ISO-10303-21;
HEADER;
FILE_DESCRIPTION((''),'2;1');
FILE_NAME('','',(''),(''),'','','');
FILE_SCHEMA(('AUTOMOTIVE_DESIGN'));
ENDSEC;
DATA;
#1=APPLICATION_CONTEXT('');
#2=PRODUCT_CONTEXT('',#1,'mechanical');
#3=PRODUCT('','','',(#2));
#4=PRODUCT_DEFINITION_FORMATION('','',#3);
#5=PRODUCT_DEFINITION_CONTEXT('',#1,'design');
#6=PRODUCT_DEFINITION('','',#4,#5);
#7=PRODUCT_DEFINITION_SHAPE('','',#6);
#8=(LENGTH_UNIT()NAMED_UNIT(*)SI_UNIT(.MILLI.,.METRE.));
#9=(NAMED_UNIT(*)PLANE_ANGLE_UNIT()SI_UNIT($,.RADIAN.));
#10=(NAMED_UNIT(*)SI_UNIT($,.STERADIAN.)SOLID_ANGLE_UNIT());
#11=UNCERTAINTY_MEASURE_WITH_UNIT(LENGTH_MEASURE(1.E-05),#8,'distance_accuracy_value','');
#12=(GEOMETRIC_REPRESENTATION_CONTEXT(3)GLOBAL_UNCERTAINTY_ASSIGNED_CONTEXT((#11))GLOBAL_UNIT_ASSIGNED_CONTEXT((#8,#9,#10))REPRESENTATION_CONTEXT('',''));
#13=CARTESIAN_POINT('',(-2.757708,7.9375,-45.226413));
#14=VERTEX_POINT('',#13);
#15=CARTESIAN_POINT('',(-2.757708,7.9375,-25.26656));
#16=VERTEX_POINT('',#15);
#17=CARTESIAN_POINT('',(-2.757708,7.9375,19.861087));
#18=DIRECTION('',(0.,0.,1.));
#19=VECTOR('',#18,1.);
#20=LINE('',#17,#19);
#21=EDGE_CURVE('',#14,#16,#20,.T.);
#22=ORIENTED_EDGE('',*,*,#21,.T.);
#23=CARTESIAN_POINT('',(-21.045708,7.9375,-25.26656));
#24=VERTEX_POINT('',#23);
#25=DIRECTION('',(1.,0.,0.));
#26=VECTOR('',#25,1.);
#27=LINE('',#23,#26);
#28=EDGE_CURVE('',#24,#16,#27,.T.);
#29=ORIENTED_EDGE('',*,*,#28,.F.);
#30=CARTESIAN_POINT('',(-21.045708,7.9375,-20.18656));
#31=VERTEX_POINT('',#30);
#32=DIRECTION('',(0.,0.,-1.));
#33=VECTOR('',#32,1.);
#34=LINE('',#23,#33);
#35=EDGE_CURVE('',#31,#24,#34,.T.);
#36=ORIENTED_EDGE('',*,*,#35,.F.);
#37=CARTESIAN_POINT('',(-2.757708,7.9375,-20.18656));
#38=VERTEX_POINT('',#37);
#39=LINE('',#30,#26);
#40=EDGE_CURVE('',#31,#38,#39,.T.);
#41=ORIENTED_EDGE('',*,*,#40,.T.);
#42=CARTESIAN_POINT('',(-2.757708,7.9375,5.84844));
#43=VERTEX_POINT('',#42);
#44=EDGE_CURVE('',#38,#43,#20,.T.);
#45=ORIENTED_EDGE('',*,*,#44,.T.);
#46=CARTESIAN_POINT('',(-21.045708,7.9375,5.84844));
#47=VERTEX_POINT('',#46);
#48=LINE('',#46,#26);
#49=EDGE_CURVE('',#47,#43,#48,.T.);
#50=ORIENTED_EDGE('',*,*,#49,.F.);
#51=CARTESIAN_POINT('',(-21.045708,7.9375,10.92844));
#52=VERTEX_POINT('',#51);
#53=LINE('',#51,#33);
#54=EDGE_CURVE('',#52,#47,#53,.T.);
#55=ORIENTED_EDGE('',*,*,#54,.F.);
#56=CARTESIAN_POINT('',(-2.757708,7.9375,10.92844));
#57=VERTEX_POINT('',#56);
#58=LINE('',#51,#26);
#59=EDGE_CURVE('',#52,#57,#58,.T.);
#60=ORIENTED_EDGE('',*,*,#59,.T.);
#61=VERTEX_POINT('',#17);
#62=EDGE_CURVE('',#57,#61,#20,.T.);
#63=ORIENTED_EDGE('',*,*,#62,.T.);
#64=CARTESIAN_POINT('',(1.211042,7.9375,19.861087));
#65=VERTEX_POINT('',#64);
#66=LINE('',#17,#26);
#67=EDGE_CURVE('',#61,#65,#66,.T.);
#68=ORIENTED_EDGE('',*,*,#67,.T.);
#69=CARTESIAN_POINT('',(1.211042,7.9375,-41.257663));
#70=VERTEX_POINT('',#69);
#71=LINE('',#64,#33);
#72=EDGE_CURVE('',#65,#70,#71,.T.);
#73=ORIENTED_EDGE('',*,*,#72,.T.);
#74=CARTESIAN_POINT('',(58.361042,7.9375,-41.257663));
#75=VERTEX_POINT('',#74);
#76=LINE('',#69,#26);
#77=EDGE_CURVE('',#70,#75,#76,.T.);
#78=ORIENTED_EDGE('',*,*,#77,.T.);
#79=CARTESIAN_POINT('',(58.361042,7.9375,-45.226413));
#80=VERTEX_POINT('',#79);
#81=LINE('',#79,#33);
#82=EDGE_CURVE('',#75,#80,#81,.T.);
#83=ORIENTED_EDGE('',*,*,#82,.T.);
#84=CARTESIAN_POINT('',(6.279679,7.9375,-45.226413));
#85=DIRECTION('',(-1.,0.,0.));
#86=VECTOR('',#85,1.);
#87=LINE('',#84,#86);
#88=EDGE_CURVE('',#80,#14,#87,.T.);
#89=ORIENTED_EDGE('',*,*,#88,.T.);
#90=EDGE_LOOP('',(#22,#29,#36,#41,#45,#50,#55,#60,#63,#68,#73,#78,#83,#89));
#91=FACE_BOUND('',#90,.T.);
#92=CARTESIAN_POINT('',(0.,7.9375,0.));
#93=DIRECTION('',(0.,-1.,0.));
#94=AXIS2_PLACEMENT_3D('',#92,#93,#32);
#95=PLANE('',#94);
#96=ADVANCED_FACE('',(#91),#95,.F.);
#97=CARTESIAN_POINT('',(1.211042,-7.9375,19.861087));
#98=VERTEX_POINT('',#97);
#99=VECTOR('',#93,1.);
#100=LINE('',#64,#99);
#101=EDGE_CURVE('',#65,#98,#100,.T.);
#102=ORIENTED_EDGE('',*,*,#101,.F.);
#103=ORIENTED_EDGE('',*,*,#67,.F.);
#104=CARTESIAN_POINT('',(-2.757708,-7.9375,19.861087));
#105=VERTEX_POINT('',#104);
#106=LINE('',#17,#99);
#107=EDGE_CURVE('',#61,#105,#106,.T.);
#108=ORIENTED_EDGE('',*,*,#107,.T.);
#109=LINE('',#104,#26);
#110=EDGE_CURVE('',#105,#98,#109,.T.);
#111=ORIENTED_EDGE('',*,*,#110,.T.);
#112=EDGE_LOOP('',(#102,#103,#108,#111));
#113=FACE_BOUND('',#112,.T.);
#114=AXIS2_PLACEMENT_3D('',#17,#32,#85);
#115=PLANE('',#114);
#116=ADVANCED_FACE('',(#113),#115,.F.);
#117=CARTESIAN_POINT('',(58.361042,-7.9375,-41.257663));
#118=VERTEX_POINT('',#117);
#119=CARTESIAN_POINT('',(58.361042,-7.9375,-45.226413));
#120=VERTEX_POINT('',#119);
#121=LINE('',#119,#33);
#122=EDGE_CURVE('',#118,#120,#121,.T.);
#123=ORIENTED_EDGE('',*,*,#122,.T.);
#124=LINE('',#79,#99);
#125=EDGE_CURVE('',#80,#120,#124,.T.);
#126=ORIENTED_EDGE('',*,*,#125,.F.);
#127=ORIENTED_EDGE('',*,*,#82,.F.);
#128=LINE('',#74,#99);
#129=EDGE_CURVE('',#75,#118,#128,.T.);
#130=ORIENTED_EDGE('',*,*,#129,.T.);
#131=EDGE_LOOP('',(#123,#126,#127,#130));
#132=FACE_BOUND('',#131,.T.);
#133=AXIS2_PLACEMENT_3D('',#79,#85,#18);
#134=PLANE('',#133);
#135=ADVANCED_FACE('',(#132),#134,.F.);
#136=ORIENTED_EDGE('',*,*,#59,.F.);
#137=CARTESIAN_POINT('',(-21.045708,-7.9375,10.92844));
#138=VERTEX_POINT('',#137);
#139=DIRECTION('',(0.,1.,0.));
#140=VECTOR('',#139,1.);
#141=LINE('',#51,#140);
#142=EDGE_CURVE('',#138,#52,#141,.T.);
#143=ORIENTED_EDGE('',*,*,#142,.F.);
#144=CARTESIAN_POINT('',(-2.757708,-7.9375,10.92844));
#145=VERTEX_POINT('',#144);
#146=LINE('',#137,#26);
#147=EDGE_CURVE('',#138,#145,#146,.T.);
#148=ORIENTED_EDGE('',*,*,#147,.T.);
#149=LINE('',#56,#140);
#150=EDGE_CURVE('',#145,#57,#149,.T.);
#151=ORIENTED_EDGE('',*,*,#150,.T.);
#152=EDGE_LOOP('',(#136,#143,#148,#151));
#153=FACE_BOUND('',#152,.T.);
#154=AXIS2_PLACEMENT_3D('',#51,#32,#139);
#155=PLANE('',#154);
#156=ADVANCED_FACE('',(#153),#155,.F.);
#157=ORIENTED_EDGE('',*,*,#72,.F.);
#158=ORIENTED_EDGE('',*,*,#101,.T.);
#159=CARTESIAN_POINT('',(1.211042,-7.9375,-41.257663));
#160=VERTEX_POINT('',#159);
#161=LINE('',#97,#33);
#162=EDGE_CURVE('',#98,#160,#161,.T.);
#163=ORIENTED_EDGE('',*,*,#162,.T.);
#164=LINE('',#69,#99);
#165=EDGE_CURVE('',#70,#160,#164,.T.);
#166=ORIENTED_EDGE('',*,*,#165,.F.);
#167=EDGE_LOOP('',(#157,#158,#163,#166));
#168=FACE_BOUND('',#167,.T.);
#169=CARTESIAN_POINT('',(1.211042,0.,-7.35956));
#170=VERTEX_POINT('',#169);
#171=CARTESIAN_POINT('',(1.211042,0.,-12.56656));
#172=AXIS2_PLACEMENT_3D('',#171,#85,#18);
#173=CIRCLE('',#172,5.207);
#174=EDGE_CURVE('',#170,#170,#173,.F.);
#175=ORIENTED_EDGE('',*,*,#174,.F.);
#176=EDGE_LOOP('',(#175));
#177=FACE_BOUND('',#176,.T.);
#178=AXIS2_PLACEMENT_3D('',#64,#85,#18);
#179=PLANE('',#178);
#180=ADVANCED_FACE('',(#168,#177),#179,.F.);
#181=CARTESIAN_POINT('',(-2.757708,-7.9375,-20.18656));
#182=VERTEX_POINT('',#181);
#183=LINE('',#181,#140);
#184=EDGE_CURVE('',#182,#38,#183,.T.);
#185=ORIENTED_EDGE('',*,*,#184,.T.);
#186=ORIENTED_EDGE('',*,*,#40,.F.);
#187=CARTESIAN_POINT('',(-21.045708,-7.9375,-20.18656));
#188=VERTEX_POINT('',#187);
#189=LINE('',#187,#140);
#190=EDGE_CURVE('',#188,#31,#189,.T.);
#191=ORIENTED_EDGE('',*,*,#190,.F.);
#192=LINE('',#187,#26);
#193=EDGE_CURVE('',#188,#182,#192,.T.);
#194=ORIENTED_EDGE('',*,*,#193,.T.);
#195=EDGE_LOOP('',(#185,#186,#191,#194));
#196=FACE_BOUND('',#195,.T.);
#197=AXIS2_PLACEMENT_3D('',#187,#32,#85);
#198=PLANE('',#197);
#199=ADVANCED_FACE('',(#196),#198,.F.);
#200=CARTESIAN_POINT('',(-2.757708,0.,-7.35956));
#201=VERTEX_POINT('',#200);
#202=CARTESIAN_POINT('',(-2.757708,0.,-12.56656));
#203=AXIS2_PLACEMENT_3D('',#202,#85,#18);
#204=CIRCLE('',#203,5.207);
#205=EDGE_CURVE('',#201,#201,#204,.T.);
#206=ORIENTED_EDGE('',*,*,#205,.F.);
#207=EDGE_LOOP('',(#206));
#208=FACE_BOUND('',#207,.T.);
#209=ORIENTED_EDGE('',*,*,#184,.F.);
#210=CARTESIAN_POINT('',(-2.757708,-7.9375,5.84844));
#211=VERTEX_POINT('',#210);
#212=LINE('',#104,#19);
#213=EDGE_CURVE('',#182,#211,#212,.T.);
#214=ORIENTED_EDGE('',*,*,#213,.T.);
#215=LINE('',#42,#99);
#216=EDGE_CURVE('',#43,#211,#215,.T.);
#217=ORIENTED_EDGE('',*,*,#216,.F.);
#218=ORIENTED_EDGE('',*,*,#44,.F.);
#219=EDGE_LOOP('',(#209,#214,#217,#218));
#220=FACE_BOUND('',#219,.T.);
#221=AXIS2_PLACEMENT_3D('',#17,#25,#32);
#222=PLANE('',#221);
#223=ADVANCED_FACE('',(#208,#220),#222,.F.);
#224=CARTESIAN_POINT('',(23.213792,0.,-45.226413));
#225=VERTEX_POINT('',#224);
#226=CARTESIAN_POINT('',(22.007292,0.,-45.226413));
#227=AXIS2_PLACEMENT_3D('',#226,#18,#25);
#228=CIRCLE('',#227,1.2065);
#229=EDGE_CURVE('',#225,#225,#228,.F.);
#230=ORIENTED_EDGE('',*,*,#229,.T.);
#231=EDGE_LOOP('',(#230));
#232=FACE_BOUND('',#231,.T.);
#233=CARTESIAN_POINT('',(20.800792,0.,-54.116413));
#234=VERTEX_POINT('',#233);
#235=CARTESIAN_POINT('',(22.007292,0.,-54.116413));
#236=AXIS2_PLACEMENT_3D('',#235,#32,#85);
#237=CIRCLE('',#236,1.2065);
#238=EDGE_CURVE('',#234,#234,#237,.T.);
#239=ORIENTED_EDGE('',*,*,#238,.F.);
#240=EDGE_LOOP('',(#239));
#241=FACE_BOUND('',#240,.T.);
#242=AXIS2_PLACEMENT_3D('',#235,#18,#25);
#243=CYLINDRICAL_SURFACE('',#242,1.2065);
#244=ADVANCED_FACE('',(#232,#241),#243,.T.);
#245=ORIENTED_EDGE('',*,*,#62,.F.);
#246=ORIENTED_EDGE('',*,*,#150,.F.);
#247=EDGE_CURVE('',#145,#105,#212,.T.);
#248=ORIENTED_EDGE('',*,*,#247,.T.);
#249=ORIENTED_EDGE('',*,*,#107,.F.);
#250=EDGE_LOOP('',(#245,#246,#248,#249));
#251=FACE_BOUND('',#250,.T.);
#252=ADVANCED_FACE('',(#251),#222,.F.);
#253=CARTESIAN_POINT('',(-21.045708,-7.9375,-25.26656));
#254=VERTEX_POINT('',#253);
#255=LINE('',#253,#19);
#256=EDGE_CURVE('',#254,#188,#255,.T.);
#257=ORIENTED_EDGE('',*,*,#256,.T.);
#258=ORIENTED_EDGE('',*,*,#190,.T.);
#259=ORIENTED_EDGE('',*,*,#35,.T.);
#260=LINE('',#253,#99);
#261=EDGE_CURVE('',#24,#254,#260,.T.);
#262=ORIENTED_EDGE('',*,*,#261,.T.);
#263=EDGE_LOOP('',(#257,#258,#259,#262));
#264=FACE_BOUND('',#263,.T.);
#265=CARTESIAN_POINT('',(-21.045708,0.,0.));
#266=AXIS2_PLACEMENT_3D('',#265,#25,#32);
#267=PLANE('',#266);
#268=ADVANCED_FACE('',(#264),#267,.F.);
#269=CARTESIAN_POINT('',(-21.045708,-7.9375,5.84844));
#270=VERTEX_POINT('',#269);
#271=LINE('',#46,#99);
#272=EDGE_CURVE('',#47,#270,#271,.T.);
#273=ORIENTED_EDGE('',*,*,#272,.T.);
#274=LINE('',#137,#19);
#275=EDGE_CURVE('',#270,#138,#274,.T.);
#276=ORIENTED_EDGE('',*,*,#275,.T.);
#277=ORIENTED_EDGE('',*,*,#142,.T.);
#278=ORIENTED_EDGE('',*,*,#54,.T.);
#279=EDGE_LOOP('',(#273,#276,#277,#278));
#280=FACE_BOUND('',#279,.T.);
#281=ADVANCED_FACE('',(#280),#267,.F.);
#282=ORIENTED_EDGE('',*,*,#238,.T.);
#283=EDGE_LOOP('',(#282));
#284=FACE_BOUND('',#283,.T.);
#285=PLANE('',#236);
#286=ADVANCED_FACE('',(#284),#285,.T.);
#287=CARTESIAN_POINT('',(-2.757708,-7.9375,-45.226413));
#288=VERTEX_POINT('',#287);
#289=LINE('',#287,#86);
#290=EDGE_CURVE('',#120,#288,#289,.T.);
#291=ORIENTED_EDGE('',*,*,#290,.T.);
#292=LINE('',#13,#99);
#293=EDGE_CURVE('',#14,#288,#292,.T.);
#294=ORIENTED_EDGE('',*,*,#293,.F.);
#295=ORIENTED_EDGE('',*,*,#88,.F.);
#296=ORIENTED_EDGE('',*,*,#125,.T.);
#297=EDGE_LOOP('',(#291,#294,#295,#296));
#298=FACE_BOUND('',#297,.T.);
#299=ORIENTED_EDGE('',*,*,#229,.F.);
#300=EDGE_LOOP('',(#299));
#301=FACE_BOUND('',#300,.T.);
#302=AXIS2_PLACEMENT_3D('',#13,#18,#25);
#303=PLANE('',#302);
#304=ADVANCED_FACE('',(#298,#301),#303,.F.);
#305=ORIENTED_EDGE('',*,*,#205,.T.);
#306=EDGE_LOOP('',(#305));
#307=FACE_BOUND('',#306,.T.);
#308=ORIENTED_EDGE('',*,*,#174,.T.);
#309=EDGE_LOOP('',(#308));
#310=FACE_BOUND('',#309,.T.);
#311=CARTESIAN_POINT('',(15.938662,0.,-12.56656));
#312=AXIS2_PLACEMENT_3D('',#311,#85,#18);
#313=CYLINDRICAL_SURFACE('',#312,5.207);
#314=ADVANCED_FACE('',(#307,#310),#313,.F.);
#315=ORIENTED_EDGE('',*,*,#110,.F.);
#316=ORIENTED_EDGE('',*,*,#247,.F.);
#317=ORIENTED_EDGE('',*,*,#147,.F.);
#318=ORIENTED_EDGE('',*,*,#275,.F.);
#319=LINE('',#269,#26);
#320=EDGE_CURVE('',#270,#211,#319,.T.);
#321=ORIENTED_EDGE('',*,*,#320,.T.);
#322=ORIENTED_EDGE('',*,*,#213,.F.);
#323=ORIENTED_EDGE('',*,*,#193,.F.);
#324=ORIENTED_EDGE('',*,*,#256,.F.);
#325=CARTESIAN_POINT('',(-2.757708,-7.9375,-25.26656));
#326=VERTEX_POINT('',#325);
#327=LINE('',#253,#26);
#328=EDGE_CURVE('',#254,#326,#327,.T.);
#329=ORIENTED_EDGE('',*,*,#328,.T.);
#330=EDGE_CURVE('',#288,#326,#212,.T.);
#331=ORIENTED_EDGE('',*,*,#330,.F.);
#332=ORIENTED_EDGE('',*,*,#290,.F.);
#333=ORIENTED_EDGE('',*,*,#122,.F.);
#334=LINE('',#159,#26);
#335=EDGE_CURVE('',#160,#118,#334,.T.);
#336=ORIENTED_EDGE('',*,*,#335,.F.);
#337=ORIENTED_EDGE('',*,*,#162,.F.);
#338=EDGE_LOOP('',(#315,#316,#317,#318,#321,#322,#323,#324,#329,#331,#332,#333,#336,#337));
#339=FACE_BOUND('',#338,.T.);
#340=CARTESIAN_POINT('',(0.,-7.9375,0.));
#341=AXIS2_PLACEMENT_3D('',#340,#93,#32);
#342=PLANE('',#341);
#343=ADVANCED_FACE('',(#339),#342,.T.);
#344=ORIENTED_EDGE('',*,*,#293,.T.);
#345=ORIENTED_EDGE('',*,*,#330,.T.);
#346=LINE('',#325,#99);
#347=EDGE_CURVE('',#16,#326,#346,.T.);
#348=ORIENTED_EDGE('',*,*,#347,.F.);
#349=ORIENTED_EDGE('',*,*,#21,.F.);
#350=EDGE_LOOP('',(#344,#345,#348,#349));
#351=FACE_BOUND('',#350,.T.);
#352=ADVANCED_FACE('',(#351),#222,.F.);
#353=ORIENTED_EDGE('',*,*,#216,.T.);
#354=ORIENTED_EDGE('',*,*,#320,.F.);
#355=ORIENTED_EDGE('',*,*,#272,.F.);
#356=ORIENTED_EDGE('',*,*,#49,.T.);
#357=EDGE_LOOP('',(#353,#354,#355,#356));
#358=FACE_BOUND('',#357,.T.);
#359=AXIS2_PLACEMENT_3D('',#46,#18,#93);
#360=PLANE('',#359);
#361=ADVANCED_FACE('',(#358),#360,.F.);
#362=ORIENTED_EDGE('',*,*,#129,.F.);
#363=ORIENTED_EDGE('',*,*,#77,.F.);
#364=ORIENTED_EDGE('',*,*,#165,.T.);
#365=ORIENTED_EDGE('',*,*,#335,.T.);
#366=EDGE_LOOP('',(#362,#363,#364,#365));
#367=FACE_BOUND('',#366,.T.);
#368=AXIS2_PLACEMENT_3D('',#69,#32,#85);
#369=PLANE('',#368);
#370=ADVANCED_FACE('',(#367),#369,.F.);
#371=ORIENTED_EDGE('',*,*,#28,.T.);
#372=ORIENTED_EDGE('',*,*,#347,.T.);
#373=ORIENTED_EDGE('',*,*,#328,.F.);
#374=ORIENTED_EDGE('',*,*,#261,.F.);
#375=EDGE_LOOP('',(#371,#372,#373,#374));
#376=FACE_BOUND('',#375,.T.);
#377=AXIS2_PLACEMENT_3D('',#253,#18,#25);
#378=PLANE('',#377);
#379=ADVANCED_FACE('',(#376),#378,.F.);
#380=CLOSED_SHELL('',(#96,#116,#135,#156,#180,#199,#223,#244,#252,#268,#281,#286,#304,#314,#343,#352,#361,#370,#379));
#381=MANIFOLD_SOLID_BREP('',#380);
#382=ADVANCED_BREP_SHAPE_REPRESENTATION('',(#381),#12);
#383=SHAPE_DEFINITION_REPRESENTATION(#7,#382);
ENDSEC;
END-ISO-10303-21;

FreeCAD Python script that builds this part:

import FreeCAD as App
import Part
import Sketcher
from FreeCAD import Vector
Q = App.Units.Quantity

doc = App.newDocument("Part")
params = doc.addObject("Spreadsheet::Sheet", "Params")
for row, (alias, value) in enumerate([
    ("sketch1_width", "2.25 in"),
    ("sketch1_width2", "0.15625 in"),
    ("pad1_length", "0.625 in"),
    ("sketch2_diameter", "0.41 in"),
    ("pocket1_length", "0.15625 in"),
    ("sketch3_diameter", "0.095 in"),
    ("pad2_length", "0.35 in"),
    ("sketch4_height", "0.2 in"),
    ("sketch4_width", "0.625 in"),
    ("pad3_length", "0.72 in"),
], start=1):
    params.set(f"A{row}", alias)
    params.set(f"B{row}", "=" + value)
    params.setAlias(f"B{row}", alias)

body = doc.addObject("PartDesign::Body", "Body")

# Sketch on XZ plane
sketch1 = body.newObject("Sketcher::SketchObject", "Sketch")
sketch1.AttachmentSupport = (doc.getObject("XZ_Plane"), [""])
sketch1.MapMode = "FlatFace"
sketch1.addGeometry(Part.LineSegment(Vector(-2.8, 19.9, 0), Vector(1.2, 19.9, 0)), False)
sketch1.addGeometry(Part.LineSegment(Vector(1.2, 19.9, 0), Vector(1.2, -41.3, 0)), False)
sketch1.addGeometry(Part.LineSegment(Vector(1.2, -41.3, 0), Vector(58.4, -41.3, 0)), False)
sketch1.addGeometry(Part.LineSegment(Vector(58.4, -41.3, 0), Vector(58.4, -45.2, 0)), False)
sketch1.addGeometry(Part.LineSegment(Vector(58.4, -45.2, 0), Vector(-2.8, -45.2, 0)), False)
sketch1.addGeometry(Part.LineSegment(Vector(-2.8, -45.2, 0), Vector(-2.8, 19.9, 0)), False)
sketch1.addConstraint(Sketcher.Constraint("Coincident", 0, 2, 1, 1))
sketch1.addConstraint(Sketcher.Constraint("Coincident", 1, 2, 2, 1))
sketch1.addConstraint(Sketcher.Constraint("Coincident", 2, 2, 3, 1))
sketch1.addConstraint(Sketcher.Constraint("Coincident", 3, 2, 4, 1))
sketch1.addConstraint(Sketcher.Constraint("Coincident", 4, 2, 5, 1))
sketch1.addConstraint(Sketcher.Constraint("Coincident", 5, 2, 0, 1))
sketch1.addConstraint(Sketcher.Constraint("Horizontal", 0))
sketch1.addConstraint(Sketcher.Constraint("Vertical", 1))
sketch1.addConstraint(Sketcher.Constraint("Horizontal", 2))
sketch1.addConstraint(Sketcher.Constraint("Vertical", 3))
sketch1.addConstraint(Sketcher.Constraint("Horizontal", 4))
sketch1.addConstraint(Sketcher.Constraint("Vertical", 5))
sketch1.addConstraint(Sketcher.Constraint("Equal", 4, 1))
sketch1.addConstraint(Sketcher.Constraint("Equal", 0, 3))
sketch1.addConstraint(Sketcher.Constraint("DistanceX", 2, 1, 2, 2, Q("2.25 in")))
sketch1.addConstraint(Sketcher.Constraint("DistanceX", 0, 1, 0, 2, Q("0.15625 in")))
sketch1.addConstraint(Sketcher.Constraint("DistanceX", -1, 1, 0, 2, Q("1.211042 mm")))
sketch1.addConstraint(Sketcher.Constraint("DistanceY", -1, 1, 0, 2, Q("19.861087 mm")))
sketch1.setExpression("Constraints[14]", "Params.sketch1_width")
sketch1.setExpression("Constraints[15]", "Params.sketch1_width2")
pad1 = body.newObject("PartDesign::Pad", "Pad")
pad1.Profile = sketch1
pad1.setExpression("Length", "Params.pad1_length")
pad1.Midplane = True

# Sketch on YZ plane
sketch2 = body.newObject("Sketcher::SketchObject", "Sketch001")
sketch2.AttachmentSupport = (doc.getObject("YZ_Plane"), [""])
sketch2.MapMode = "FlatFace"
sketch2.AttachmentOffset = App.Placement(Vector(0, 0, -2.757708), App.Rotation())
sketch2.addGeometry(Part.Circle(Vector(0, -13, 0), Vector(0, 0, 1), 5), False)
sketch2.addConstraint(Sketcher.Constraint("PointOnObject", 0, 3, -2))
sketch2.addConstraint(Sketcher.Constraint("Diameter", 0, Q("0.41 in")))
sketch2.addConstraint(Sketcher.Constraint("DistanceY", 0, 3, -1, 1, Q("12.56656 mm")))
sketch2.setExpression("Constraints[1]", "Params.sketch2_diameter")
pocket1 = body.newObject("PartDesign::Pocket", "Pocket")
pocket1.Profile = sketch2
pocket1.setExpression("Length", "Params.pocket1_length")
pocket1.Reversed = True

# Sketch on XY plane
sketch3 = body.newObject("Sketcher::SketchObject", "Sketch002")
sketch3.AttachmentSupport = (doc.getObject("XY_Plane"), [""])
sketch3.MapMode = "FlatFace"
sketch3.AttachmentOffset = App.Placement(Vector(0, 0, -45.226413), App.Rotation())
sketch3.addGeometry(Part.Circle(Vector(22, 0, 0), Vector(0, 0, 1), 1.2), False)
sketch3.addConstraint(Sketcher.Constraint("PointOnObject", 0, 3, -1))
sketch3.addConstraint(Sketcher.Constraint("Diameter", 0, Q("0.095 in")))
sketch3.addConstraint(Sketcher.Constraint("DistanceX", -1, 1, 0, 3, Q("22.007292 mm")))
sketch3.setExpression("Constraints[1]", "Params.sketch3_diameter")
pad2 = body.newObject("PartDesign::Pad", "Pad001")
pad2.Profile = sketch3
pad2.setExpression("Length", "Params.pad2_length")
pad2.Reversed = True

# Sketch on YZ plane
sketch4 = body.newObject("Sketcher::SketchObject", "Sketch003")
sketch4.AttachmentSupport = (doc.getObject("YZ_Plane"), [""])
sketch4.MapMode = "FlatFace"
sketch4.AttachmentOffset = App.Placement(Vector(0, 0, -2.757708), App.Rotation())
sketch4.addGeometry(Part.LineSegment(Vector(8, -25, 0), Vector(-8, -25, 0)), False)
sketch4.addGeometry(Part.LineSegment(Vector(-8, -25, 0), Vector(-8, -20, 0)), False)
sketch4.addGeometry(Part.LineSegment(Vector(-8, -20, 0), Vector(8, -20, 0)), False)
sketch4.addGeometry(Part.LineSegment(Vector(8, -20, 0), Vector(8, -25, 0)), False)
sketch4.addGeometry(Part.LineSegment(Vector(8, 6, 0), Vector(-8, 6, 0)), False)
sketch4.addGeometry(Part.LineSegment(Vector(-8, 6, 0), Vector(-8, 11, 0)), False)
sketch4.addGeometry(Part.LineSegment(Vector(-8, 11, 0), Vector(8, 11, 0)), False)
sketch4.addGeometry(Part.LineSegment(Vector(8, 11, 0), Vector(8, 6, 0)), False)
sketch4.addConstraint(Sketcher.Constraint("Coincident", 0, 2, 1, 1))
sketch4.addConstraint(Sketcher.Constraint("Coincident", 1, 2, 2, 1))
sketch4.addConstraint(Sketcher.Constraint("Coincident", 2, 2, 3, 1))
sketch4.addConstraint(Sketcher.Constraint("Coincident", 3, 2, 0, 1))
sketch4.addConstraint(Sketcher.Constraint("Coincident", 4, 2, 5, 1))
sketch4.addConstraint(Sketcher.Constraint("Coincident", 5, 2, 6, 1))
sketch4.addConstraint(Sketcher.Constraint("Coincident", 6, 2, 7, 1))
sketch4.addConstraint(Sketcher.Constraint("Coincident", 7, 2, 4, 1))
sketch4.addConstraint(Sketcher.Constraint("Horizontal", 0))
sketch4.addConstraint(Sketcher.Constraint("Vertical", 1))
sketch4.addConstraint(Sketcher.Constraint("Horizontal", 2))
sketch4.addConstraint(Sketcher.Constraint("Vertical", 3))
sketch4.addConstraint(Sketcher.Constraint("Horizontal", 4))
sketch4.addConstraint(Sketcher.Constraint("Vertical", 5))
sketch4.addConstraint(Sketcher.Constraint("Horizontal", 6))
sketch4.addConstraint(Sketcher.Constraint("Vertical", 7))
sketch4.addConstraint(Sketcher.Constraint("Vertical", 1, 2, 4, 2))
sketch4.addConstraint(Sketcher.Constraint("Vertical", 3, 2, 6, 2))
sketch4.addConstraint(Sketcher.Constraint("Equal", 3, 5))
sketch4.addConstraint(Sketcher.Constraint("DistanceY", 1, 1, 1, 2, Q("0.2 in")))
sketch4.addConstraint(Sketcher.Constraint("DistanceX", 0, 2, 0, 1, Q("0.625 in")))
sketch4.addConstraint(Sketcher.Constraint("DistanceX", 0, 2, -1, 1, Q("0.3125 in")))
sketch4.addConstraint(Sketcher.Constraint("DistanceY", 1, 2, 4, 2, Q("1.025 in")))
sketch4.addConstraint(Sketcher.Constraint("DistanceY", 0, 2, -1, 1, Q("25.26656 mm")))
sketch4.setExpression("Constraints[19]", "Params.sketch4_height")
sketch4.setExpression("Constraints[20]", "Params.sketch4_width")
pad3 = body.newObject("PartDesign::Pad", "Pad002")
pad3.Profile = sketch4
pad3.setExpression("Length", "Params.pad3_length")
pad3.Reversed = True

doc.recompute()
